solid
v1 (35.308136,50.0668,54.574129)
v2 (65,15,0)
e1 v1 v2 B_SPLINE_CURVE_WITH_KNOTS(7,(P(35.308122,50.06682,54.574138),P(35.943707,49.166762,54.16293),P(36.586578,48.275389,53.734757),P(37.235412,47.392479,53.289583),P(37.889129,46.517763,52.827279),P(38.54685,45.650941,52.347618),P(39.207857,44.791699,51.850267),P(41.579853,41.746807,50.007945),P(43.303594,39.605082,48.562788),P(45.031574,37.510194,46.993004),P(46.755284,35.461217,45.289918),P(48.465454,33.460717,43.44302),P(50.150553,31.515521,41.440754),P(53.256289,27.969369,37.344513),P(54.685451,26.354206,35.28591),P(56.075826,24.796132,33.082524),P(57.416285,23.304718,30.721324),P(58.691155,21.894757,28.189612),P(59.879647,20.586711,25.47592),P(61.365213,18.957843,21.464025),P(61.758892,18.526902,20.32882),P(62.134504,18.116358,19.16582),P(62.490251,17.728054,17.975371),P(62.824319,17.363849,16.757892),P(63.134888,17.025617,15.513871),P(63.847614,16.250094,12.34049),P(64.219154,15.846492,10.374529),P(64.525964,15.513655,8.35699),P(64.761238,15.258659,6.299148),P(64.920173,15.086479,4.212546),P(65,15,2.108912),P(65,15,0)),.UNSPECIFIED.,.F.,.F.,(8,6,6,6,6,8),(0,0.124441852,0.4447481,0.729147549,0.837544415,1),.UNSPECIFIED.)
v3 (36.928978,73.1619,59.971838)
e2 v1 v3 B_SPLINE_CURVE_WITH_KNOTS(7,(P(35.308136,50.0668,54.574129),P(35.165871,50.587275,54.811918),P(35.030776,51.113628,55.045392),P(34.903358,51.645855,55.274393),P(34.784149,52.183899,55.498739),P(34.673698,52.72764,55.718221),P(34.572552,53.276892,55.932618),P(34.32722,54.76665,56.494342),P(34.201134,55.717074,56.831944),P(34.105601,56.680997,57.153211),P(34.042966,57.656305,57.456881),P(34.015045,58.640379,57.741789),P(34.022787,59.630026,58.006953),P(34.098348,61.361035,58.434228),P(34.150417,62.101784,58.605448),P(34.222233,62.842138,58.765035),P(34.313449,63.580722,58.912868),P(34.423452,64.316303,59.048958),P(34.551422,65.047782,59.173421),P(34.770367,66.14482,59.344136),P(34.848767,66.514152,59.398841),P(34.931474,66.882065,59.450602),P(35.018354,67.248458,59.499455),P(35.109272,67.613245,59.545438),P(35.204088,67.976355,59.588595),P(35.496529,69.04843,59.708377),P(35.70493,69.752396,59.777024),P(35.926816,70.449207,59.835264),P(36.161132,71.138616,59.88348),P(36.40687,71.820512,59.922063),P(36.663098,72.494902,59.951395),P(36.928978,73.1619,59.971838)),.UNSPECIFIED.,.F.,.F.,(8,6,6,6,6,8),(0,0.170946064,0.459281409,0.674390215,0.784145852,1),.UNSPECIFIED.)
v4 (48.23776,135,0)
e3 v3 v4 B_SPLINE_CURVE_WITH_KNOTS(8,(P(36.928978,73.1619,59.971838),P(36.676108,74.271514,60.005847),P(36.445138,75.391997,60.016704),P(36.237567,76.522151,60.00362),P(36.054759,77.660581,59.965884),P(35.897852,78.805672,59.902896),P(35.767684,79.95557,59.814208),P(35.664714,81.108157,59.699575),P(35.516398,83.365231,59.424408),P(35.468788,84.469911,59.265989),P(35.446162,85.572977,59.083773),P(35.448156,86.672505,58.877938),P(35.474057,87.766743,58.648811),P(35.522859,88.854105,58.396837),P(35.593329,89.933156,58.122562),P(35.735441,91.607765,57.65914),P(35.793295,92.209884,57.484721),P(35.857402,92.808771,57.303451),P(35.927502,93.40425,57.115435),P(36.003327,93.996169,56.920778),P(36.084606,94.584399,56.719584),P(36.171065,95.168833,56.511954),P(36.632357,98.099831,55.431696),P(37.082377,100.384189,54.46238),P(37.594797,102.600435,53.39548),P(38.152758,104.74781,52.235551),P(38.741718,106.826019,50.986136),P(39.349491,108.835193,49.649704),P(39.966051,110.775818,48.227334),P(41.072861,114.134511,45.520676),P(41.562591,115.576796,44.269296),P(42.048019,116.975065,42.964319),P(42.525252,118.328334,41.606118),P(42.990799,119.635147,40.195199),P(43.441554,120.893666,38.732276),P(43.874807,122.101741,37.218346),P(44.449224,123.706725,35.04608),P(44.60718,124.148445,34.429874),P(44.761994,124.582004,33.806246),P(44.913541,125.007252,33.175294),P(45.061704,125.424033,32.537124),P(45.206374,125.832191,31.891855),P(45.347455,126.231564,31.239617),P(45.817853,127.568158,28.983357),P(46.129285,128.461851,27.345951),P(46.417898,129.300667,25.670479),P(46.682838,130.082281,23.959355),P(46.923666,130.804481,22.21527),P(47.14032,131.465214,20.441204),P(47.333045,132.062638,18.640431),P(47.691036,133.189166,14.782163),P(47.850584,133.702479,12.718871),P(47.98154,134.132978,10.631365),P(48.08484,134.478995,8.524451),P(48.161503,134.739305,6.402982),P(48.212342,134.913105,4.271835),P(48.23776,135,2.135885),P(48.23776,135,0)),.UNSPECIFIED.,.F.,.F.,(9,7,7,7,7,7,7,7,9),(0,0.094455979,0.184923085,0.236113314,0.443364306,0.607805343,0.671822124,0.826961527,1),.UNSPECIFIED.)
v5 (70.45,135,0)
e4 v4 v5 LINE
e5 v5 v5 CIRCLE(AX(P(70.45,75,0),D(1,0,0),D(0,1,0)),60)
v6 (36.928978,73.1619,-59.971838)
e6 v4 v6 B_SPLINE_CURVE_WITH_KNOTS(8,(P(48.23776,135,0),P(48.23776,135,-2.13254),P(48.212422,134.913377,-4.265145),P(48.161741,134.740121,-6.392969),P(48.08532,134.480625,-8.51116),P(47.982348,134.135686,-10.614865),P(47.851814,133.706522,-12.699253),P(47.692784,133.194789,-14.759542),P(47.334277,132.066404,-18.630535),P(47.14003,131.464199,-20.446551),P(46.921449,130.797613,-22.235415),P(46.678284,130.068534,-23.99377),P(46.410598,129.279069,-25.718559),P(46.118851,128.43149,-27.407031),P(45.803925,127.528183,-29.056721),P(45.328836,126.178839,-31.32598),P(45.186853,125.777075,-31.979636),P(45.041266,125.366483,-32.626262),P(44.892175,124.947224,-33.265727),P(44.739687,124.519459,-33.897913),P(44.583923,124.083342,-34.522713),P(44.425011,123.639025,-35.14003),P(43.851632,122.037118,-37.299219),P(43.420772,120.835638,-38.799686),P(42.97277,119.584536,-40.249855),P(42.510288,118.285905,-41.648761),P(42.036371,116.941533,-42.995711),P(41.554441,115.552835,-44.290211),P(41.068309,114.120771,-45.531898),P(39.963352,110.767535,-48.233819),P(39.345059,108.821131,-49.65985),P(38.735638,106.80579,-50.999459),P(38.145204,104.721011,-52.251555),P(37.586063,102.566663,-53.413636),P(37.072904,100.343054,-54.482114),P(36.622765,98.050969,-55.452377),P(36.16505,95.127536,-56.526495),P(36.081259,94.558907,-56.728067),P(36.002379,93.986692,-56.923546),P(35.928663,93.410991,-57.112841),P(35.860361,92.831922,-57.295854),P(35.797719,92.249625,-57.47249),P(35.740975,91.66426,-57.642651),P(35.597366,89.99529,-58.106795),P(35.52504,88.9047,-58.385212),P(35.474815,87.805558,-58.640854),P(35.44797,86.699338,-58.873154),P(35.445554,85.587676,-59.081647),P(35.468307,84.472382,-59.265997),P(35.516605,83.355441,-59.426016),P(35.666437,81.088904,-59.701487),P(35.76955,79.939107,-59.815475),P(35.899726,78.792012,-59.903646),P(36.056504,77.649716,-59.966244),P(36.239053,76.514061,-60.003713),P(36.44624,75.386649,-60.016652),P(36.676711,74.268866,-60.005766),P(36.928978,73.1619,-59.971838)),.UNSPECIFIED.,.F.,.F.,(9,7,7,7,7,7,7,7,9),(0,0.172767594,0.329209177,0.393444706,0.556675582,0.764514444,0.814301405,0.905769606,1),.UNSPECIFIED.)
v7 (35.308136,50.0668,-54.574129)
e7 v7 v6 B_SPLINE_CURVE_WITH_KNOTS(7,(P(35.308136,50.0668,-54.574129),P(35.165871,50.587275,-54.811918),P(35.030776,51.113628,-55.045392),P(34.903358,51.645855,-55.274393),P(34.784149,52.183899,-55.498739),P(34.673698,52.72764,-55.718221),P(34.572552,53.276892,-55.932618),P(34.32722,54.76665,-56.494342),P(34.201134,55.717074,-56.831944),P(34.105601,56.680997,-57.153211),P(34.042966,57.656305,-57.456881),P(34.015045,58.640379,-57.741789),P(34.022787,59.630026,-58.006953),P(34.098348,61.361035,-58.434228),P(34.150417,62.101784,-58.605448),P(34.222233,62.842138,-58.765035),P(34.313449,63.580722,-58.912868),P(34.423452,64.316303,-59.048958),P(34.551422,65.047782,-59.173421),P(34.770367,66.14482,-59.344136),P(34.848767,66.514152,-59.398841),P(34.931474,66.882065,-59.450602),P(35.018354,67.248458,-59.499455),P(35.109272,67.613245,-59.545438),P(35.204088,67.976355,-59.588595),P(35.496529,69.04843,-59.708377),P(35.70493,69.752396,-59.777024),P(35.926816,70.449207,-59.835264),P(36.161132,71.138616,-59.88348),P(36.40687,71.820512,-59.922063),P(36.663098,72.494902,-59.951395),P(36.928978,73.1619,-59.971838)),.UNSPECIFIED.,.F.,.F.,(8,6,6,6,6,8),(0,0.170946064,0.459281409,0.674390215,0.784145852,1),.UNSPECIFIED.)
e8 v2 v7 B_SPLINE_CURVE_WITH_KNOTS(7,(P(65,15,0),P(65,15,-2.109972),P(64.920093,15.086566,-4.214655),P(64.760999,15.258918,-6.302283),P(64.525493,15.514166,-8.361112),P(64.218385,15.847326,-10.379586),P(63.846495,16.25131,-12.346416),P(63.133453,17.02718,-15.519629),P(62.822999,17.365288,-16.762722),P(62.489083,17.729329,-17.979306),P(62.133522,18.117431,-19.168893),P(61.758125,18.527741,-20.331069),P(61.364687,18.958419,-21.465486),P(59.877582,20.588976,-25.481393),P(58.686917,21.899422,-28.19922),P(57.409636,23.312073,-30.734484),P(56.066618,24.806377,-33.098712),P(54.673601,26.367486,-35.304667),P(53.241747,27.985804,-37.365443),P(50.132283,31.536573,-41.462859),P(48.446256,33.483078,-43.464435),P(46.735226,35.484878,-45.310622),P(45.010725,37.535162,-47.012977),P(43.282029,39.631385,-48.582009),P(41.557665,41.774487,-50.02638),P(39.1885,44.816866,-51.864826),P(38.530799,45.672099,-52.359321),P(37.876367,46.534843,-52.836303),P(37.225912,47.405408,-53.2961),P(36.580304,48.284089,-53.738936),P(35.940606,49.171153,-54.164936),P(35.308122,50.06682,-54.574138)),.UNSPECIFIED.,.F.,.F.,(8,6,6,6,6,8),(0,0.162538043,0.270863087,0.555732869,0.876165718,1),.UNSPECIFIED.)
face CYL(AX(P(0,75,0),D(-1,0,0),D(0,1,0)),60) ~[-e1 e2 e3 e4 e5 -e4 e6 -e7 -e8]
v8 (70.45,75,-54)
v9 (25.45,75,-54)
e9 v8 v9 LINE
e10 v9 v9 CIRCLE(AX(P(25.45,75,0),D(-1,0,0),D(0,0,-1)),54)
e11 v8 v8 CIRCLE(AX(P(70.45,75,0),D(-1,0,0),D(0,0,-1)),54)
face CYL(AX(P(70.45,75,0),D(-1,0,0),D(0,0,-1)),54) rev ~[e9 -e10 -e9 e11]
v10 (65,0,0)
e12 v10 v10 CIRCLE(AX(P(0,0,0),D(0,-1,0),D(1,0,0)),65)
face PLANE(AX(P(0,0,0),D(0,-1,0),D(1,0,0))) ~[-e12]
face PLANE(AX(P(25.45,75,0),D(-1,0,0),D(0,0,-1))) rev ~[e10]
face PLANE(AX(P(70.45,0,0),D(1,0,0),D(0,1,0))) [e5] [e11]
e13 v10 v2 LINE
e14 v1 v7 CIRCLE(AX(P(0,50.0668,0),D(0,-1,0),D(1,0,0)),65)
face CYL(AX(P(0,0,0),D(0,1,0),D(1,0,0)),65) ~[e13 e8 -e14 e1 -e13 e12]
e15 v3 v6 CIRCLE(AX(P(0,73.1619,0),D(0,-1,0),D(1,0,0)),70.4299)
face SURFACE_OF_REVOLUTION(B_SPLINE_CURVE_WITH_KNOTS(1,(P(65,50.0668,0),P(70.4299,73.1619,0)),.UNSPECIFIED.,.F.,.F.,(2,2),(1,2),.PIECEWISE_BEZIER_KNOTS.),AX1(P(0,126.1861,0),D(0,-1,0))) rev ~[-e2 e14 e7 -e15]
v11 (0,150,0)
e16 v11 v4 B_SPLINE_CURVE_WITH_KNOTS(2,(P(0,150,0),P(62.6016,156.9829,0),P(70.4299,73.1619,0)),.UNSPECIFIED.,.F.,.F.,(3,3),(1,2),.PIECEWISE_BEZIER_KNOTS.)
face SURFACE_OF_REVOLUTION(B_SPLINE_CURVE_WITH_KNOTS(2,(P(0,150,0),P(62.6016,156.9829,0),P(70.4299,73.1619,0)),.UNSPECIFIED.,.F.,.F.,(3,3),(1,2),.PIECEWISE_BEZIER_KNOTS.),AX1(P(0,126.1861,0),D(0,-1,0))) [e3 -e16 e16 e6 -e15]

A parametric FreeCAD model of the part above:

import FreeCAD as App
import Part
import Sketcher
Q = App.Units.Quantity

doc = App.newDocument("Part")
body = doc.addObject("PartDesign::Body", "Body")

# Sketch on XY plane
sketch1 = body.newObject("Sketcher::SketchObject", "Sketch")
sketch1.AttachmentSupport = (doc.getObject("XY_Plane"), [""])
sketch1.MapMode = "FlatFace"
sketch1.addGeometry(Part.LineSegment(App.Vector(0, 150, 0), App.Vector(0, 0, 0)), False)
sketch1.addGeometry(Part.LineSegment(App.Vector(0, 0, 0), App.Vector(65, 0, 0)), False)
sketch1.addGeometry(Part.LineSegment(App.Vector(65, 0, 0), App.Vector(65, 50.0668, 0)), False)
sketch1.addGeometry(Part.BSplineCurve([App.Vector(65, 50.0668, 0), App.Vector(70.4299, 73.1619, 0)], [2, 2], [1, 2], False, 1, [1, 1], False), False)
sketch1.addGeometry(Part.BSplineCurve([App.Vector(0, 150, 0), App.Vector(62.6016, 156.9829, 0), App.Vector(70.4299, 73.1619, 0)], [3, 3], [1, 2], False, 2, [1, 1, 1], False), False)
sketch1.addConstraint(Sketcher.Constraint("Block", 3))
sketch1.addConstraint(Sketcher.Constraint("Block", 4))
sketch1.addConstraint(Sketcher.Constraint("Coincident", 0, 2, 1, 1))
sketch1.addConstraint(Sketcher.Constraint("Coincident", 1, 2, 2, 1))
sketch1.addConstraint(Sketcher.Constraint("Coincident", 2, 2, 3, 1))
sketch1.addConstraint(Sketcher.Constraint("Coincident", 4, 1, 0, 1))
sketch1.addConstraint(Sketcher.Constraint("Vertical", 0))
sketch1.addConstraint(Sketcher.Constraint("Horizontal", 1))
sketch1.addConstraint(Sketcher.Constraint("Vertical", 2))
sketch1.addConstraint(Sketcher.Constraint("PointOnObject", 1, 2, -1))
revolution = body.newObject("PartDesign::Revolution", "Revolution")
revolution.Profile = sketch1
revolution.ReferenceAxis = (sketch1, ["V_Axis"])
revolution.Angle = 360

# Sketch on YZ plane
sketch2 = body.newObject("Sketcher::SketchObject", "Sketch001")
sketch2.AttachmentSupport = (doc.getObject("YZ_Plane"), [""])
sketch2.MapMode = "FlatFace"
sketch2.addGeometry(Part.Circle(App.Vector(75, 0, 0), App.Vector(0, 0, 1), 60), False)
sketch2.addConstraint(Sketcher.Constraint("PointOnObject", 0, 3, -1))
sketch2.addConstraint(Sketcher.Constraint("Diameter", 0, Q("120 mm")))
sketch2.addConstraint(Sketcher.Constraint("DistanceX", -1, 1, 0, 3, Q("75 mm")))
pad1 = body.newObject("PartDesign::Pad", "Pad")
pad1.Profile = sketch2
pad1.Length = 70.45

# Sketch on YZ plane
sketch3 = body.newObject("Sketcher::SketchObject", "Sketch002")
sketch3.AttachmentSupport = (doc.getObject("YZ_Plane"), [""])
sketch3.MapMode = "FlatFace"
sketch3.AttachmentOffset = App.Placement(App.Vector(0, 0, 70.45), App.Rotation())
sketch3.addGeometry(Part.Circle(App.Vector(75, 0, 0), App.Vector(0, 0, 1), 54), False)
sketch3.addConstraint(Sketcher.Constraint("PointOnObject", 0, 3, -1))
sketch3.addConstraint(Sketcher.Constraint("Diameter", 0, Q("108 mm")))
sketch3.addConstraint(Sketcher.Constraint("DistanceX", -1, 1, 0, 3, Q("75 mm")))
doc.recompute()
hole = body.newObject("PartDesign::Hole", "Hole")
hole.Profile = sketch3
hole.ThreadType = "None"
hole.Diameter = 108
hole.DepthType = "Dimension"
hole.Depth = 45
hole.DrillPoint = "Flat"

doc.recompute()
